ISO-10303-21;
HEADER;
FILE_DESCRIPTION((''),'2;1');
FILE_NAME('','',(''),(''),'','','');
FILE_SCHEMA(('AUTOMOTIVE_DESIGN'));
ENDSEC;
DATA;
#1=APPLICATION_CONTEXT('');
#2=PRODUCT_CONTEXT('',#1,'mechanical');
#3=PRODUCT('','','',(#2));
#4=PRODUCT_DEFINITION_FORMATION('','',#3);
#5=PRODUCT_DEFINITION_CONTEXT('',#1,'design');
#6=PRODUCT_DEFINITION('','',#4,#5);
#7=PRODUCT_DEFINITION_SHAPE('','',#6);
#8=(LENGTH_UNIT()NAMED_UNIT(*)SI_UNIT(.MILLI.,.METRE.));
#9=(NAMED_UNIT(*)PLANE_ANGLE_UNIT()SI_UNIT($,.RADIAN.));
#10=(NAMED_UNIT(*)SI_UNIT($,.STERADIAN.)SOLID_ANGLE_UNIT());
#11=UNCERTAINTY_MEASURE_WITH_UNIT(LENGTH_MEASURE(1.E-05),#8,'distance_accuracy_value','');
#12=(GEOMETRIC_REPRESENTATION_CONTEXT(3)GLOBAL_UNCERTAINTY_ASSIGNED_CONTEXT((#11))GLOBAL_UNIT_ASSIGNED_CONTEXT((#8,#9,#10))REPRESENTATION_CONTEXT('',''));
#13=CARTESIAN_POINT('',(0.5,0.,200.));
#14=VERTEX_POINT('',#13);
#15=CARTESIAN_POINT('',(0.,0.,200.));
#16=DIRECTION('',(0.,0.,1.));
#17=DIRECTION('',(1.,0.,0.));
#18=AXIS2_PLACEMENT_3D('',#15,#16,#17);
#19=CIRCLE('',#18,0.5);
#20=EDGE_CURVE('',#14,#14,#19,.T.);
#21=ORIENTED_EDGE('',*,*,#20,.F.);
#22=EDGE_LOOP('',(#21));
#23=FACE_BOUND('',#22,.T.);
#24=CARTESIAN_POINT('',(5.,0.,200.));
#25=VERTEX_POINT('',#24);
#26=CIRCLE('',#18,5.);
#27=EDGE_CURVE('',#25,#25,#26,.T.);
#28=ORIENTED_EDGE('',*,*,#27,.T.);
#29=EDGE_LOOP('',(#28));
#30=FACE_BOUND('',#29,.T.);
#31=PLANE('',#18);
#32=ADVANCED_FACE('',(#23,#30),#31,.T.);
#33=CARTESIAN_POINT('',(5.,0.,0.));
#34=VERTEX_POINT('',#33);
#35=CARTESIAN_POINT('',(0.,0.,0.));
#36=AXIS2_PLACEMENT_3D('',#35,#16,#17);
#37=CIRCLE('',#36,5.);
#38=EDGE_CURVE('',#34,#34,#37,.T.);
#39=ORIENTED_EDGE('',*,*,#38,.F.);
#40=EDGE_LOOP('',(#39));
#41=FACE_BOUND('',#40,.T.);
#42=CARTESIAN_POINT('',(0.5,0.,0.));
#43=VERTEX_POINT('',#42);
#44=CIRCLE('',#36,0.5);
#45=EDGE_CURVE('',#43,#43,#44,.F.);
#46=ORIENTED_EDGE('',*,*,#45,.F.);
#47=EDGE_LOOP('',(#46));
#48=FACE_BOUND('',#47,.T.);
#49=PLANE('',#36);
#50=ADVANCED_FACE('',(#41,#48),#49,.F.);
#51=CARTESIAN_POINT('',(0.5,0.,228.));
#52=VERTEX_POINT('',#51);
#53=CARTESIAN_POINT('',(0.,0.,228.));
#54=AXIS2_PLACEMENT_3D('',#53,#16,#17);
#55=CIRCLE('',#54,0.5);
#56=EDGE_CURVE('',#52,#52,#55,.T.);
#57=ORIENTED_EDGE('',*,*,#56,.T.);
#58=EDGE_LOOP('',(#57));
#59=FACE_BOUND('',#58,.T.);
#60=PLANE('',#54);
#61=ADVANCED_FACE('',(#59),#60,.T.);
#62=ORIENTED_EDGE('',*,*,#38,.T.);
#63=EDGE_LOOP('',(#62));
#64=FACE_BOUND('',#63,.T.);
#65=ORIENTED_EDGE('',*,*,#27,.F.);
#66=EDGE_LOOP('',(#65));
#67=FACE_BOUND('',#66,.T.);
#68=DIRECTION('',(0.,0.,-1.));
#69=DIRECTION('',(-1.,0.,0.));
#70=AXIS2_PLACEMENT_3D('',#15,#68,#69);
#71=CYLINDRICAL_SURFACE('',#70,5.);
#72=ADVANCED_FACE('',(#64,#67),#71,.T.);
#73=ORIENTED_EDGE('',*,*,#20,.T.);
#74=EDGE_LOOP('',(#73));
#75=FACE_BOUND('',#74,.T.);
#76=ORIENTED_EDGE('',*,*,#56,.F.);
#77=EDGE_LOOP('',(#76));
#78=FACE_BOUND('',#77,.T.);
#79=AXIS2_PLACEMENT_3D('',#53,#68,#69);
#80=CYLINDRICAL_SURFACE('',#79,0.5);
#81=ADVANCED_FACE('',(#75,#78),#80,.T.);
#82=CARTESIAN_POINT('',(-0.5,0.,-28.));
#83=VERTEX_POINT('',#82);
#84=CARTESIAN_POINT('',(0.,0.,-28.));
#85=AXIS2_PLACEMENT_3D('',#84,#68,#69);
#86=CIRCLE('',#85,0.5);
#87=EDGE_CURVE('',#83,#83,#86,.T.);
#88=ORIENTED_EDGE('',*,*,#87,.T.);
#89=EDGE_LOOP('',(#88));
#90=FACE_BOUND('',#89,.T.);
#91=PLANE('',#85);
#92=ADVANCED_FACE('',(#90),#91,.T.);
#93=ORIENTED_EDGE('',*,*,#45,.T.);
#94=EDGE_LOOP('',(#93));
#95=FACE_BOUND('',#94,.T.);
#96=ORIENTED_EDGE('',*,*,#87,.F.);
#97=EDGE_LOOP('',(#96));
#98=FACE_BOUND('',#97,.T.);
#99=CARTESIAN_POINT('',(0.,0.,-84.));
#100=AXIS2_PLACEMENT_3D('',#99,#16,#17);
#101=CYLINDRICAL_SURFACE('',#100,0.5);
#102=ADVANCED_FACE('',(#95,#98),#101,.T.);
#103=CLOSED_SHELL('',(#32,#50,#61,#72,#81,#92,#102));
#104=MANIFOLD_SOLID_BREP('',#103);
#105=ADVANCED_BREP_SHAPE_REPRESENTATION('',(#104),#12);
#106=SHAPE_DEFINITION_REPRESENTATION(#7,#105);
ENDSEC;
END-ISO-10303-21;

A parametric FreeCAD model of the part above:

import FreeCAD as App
import Part
import Sketcher
from FreeCAD import Vector

doc = App.newDocument("Part")
body = doc.addObject("PartDesign::Body", "Body")

sketch1 = body.newObject("Sketcher::SketchObject", "Sketch")
sketch1.AttachmentSupport = (doc.getObject("XY_Plane"), [""])
sketch1.MapMode = "FlatFace"
sketch1.addGeometry(Part.Circle(Vector(0, 0, 0), Vector(0, 0, 1), 5), False)
sketch1.addConstraint([
    Sketcher.Constraint("Coincident", 0, 3, -1, 1),
    Sketcher.Constraint("Diameter", 0, 10.0),
])
pad1 = body.newObject("PartDesign::Pad", "Pad")
pad1.Profile = sketch1
pad1.Length = 200

sketch2 = body.newObject("Sketcher::SketchObject", "Sketch001")
sketch2.AttachmentSupport = (doc.getObject("XY_Plane"), [""])
sketch2.MapMode = "FlatFace"
sketch2.AttachmentOffset = App.Placement(Vector(0, 0, 200), App.Rotation())
sketch2.addGeometry(Part.Circle(Vector(0, 0, 0), Vector(0, 0, 1), 0.5), False)
sketch2.addConstraint([
    Sketcher.Constraint("Coincident", 0, 3, -1, 1),
    Sketcher.Constraint("Diameter", 0, 1.0),
])
pad2 = body.newObject("PartDesign::Pad", "Pad001")
pad2.Profile = sketch2
pad2.Length = 28

sketch3 = body.newObject("Sketcher::SketchObject", "Sketch002")
sketch3.AttachmentSupport = (doc.getObject("XY_Plane"), [""])
sketch3.MapMode = "FlatFace"
sketch3.AttachmentOffset = App.Placement(Vector(0, 0, -84), App.Rotation())
sketch3.addGeometry(Part.Circle(Vector(0, 0, 0), Vector(0, 0, 1), 0.5), False)
sketch3.addConstraint([
    Sketcher.Constraint("Coincident", 0, 3, -1, 1),
    Sketcher.Constraint("Diameter", 0, 1.0),
])
pad3 = body.newObject("PartDesign::Pad", "Pad002")
pad3.Profile = sketch3
pad3.Length = 84

sketch4 = body.newObject("Sketcher::SketchObject", "Sketch003")
sketch4.AttachmentSupport = (doc.getObject("XY_Plane"), [""])
sketch4.MapMode = "FlatFace"
sketch4.AttachmentOffset = App.Placement(Vector(0, 0, -84), App.Rotation())
sketch4.addGeometry(Part.Circle(Vector(0, 0, 0), Vector(0, 0, 1), 0.5), False)
sketch4.addConstraint([
    Sketcher.Constraint("Coincident", 0, 3, -1, 1),
    Sketcher.Constraint("Diameter", 0, 1.0),
])
pocket1 = body.newObject("PartDesign::Pocket", "Pocket")
pocket1.Profile = sketch4
pocket1.Length = 56
pocket1.Reversed = True

doc.recompute()
